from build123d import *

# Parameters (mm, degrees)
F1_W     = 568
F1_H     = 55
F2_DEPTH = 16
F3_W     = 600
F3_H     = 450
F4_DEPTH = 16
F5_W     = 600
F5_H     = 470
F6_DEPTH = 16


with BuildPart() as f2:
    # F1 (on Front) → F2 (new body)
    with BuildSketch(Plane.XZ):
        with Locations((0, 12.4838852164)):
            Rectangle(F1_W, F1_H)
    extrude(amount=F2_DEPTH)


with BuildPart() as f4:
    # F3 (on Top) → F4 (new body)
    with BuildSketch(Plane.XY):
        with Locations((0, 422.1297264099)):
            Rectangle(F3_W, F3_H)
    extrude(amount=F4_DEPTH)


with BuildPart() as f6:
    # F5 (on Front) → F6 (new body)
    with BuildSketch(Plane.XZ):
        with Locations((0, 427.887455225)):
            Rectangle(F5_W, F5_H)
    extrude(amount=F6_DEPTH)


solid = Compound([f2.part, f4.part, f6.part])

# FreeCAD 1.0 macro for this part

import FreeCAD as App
import Part
import Sketcher
from FreeCAD import Vector

doc = App.newDocument("Part")
body = doc.addObject("PartDesign::Body", "Body")

# Sketch on XZ plane
sketch1 = body.newObject("Sketcher::SketchObject", "Sketch")
sketch1.AttachmentSupport = (doc.getObject("XZ_Plane"), [""])
sketch1.MapMode = "FlatFace"
sketch1.addGeometry([
    Part.LineSegment(Vector(-284, 40, 0), Vector(-284, -15, 0)),
    Part.LineSegment(Vector(-284, -15, 0), Vector(284, -15, 0)),
    Part.LineSegment(Vector(284, -15, 0), Vector(284, 40, 0)),
    Part.LineSegment(Vector(284, 40, 0), Vector(-284, 40, 0)),
], False)
sketch1.addConstraint([
    Sketcher.Constraint("Coincident", 0, 2, 1, 1),
    Sketcher.Constraint("Coincident", 1, 2, 2, 1),
    Sketcher.Constraint("Coincident", 2, 2, 3, 1),
    Sketcher.Constraint("Coincident", 3, 2, 0, 1),
    Sketcher.Constraint("Vertical", 0),
    Sketcher.Constraint("Horizontal", 1),
    Sketcher.Constraint("Vertical", 2),
    Sketcher.Constraint("Horizontal", 3),
    Sketcher.Constraint("DistanceX", 1, 1, 1, 2, 568.0),
    Sketcher.Constraint("DistanceY", 0, 2, 0, 1, 55.0),
    Sketcher.Constraint("DistanceX", 0, 2, -1, 1, 284.0),
    Sketcher.Constraint("DistanceY", 0, 2, -1, 1, 15.016115),
])
pad1 = body.newObject("PartDesign::Pad", "Pad")
pad1.Profile = sketch1
pad1.Length = 16
body2 = doc.addObject("PartDesign::Body", "Body001")

# Sketch on XY plane
sketch2 = body2.newObject("Sketcher::SketchObject", "Sketch001")
sketch2.AttachmentSupport = (doc.getObject("XY_Plane001"), [""])
sketch2.MapMode = "FlatFace"
sketch2.addGeometry([
    Part.LineSegment(Vector(-300, 647, 0), Vector(-300, 197, 0)),
    Part.LineSegment(Vector(-300, 197, 0), Vector(300, 197, 0)),
    Part.LineSegment(Vector(300, 197, 0), Vector(300, 647, 0)),
    Part.LineSegment(Vector(300, 647, 0), Vector(-300, 647, 0)),
], False)
sketch2.addConstraint([
    Sketcher.Constraint("Coincident", 0, 2, 1, 1),
    Sketcher.Constraint("Coincident", 1, 2, 2, 1),
    Sketcher.Constraint("Coincident", 2, 2, 3, 1),
    Sketcher.Constraint("Coincident", 3, 2, 0, 1),
    Sketcher.Constraint("Vertical", 0),
    Sketcher.Constraint("Horizontal", 1),
    Sketcher.Constraint("Vertical", 2),
    Sketcher.Constraint("Horizontal", 3),
    Sketcher.Constraint("DistanceX", 1, 1, 1, 2, 600.0),
    Sketcher.Constraint("DistanceY", 0, 2, 0, 1, 450.0),
    Sketcher.Constraint("DistanceX", 0, 2, -1, 1, 300.0),
    Sketcher.Constraint("DistanceY", -1, 1, 0, 2, 197.129726),
])
pad2 = body2.newObject("PartDesign::Pad", "Pad001")
pad2.Profile = sketch2
pad2.Length = 16
body3 = doc.addObject("PartDesign::Body", "Body002")

# Sketch on XZ plane
sketch3 = body3.newObject("Sketcher::SketchObject", "Sketch002")
sketch3.AttachmentSupport = (doc.getObject("XZ_Plane002"), [""])
sketch3.MapMode = "FlatFace"
sketch3.addGeometry([
    Part.LineSegment(Vector(-300, 663, 0), Vector(-300, 193, 0)),
    Part.LineSegment(Vector(-300, 193, 0), Vector(300, 193, 0)),
    Part.LineSegment(Vector(300, 193, 0), Vector(300, 663, 0)),
    Part.LineSegment(Vector(300, 663, 0), Vector(-300, 663, 0)),
], False)
sketch3.addConstraint([
    Sketcher.Constraint("Coincident", 0, 2, 1, 1),
    Sketcher.Constraint("Coincident", 1, 2, 2, 1),
    Sketcher.Constraint("Coincident", 2, 2, 3, 1),
    Sketcher.Constraint("Coincident", 3, 2, 0, 1),
    Sketcher.Constraint("Vertical", 0),
    Sketcher.Constraint("Horizontal", 1),
    Sketcher.Constraint("Vertical", 2),
    Sketcher.Constraint("Horizontal", 3),
    Sketcher.Constraint("DistanceX", 1, 1, 1, 2, 600.0),
    Sketcher.Constraint("DistanceY", 0, 2, 0, 1, 470.0),
    Sketcher.Constraint("DistanceX", 0, 2, -1, 1, 300.0),
    Sketcher.Constraint("DistanceY", -1, 1, 0, 2, 192.887455),
])
pad3 = body3.newObject("PartDesign::Pad", "Pad002")
pad3.Profile = sketch3
pad3.Length = 16

doc.recompute()
